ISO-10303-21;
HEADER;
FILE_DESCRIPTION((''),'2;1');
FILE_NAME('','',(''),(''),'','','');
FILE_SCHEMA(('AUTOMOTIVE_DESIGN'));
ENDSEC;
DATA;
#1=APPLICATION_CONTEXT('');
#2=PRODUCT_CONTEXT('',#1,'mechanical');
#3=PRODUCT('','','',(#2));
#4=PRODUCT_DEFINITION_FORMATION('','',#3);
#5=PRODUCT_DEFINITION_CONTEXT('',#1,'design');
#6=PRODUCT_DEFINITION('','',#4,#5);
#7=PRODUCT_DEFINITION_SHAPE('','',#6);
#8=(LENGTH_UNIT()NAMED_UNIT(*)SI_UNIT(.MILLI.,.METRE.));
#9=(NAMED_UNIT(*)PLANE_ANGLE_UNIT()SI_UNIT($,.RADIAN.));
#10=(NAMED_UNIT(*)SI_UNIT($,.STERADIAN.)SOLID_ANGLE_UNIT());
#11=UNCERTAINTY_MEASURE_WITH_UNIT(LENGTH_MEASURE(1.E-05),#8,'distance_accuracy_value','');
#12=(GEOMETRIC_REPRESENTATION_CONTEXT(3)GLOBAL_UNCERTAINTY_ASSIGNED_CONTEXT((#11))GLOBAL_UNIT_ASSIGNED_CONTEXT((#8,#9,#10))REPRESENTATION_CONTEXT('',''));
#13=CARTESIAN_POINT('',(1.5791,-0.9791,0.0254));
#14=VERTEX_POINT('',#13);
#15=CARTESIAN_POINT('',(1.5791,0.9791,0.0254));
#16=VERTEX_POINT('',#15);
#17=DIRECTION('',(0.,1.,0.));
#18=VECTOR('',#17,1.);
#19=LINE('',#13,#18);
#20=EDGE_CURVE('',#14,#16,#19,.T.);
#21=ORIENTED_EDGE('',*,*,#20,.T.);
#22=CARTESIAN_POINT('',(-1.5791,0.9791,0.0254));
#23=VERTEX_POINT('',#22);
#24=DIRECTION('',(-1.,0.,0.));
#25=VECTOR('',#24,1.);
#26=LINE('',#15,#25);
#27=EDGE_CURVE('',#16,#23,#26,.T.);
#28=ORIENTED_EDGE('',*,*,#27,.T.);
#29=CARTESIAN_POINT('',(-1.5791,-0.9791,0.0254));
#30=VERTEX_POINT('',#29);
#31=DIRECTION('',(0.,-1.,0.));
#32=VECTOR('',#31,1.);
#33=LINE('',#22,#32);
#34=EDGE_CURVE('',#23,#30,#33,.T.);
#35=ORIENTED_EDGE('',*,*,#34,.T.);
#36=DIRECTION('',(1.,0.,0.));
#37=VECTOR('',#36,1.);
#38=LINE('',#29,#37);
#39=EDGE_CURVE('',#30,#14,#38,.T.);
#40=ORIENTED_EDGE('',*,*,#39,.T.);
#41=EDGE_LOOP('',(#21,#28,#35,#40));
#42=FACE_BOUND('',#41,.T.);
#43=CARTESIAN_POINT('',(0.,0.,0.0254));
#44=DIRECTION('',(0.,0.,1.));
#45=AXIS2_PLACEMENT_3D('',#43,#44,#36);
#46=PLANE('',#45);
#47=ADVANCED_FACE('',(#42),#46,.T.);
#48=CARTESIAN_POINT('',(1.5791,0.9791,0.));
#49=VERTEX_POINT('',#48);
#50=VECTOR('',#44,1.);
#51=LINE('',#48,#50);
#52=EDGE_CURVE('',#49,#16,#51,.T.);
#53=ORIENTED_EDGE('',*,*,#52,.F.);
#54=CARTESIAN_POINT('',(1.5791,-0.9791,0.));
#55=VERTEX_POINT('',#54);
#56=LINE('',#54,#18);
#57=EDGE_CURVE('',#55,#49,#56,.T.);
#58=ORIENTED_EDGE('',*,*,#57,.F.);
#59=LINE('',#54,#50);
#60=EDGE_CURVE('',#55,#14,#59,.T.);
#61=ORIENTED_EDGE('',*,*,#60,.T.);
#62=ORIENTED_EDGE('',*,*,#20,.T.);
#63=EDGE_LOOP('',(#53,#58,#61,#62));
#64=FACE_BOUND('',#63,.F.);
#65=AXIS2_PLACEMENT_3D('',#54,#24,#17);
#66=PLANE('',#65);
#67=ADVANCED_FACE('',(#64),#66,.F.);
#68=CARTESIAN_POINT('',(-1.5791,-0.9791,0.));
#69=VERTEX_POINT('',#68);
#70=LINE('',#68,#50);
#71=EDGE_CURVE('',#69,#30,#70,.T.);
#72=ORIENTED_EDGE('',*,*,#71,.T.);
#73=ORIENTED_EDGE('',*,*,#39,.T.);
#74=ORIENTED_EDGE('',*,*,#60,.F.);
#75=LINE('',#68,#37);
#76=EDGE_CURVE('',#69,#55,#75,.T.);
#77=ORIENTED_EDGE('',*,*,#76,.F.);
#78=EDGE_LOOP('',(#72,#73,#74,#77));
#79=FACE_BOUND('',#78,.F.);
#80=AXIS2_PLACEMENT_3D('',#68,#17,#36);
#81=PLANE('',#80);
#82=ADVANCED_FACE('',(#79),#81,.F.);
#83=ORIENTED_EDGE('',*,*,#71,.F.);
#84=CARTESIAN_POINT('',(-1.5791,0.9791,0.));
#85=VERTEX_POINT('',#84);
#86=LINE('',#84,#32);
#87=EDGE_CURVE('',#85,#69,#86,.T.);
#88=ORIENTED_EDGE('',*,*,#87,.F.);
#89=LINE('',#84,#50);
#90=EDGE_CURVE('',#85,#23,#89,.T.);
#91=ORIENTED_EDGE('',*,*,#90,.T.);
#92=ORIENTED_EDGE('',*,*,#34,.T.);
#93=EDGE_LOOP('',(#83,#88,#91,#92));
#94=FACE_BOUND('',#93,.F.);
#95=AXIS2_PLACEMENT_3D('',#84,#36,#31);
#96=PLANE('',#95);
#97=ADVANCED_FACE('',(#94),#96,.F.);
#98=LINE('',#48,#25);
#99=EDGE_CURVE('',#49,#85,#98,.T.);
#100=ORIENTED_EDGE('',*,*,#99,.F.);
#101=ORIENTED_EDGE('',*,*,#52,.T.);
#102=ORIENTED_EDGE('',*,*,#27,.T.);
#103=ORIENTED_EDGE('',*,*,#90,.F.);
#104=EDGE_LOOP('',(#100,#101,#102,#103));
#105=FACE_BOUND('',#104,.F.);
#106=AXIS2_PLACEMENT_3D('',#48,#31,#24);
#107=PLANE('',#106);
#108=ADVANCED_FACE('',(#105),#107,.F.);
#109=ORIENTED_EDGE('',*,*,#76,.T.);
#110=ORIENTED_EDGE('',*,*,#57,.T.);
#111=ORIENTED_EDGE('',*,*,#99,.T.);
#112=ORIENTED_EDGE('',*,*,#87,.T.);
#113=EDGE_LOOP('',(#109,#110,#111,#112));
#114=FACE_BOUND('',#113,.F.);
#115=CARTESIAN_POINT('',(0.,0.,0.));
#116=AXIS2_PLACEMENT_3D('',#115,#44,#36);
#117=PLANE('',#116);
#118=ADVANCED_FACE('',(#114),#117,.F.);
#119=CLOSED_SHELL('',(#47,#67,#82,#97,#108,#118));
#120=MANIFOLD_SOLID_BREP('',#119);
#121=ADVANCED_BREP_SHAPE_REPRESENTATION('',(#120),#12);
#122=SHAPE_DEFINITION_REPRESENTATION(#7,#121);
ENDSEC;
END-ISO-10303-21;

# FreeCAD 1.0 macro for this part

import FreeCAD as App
import Part
import Sketcher

V = App.Vector
Q = App.Units.Quantity


def add_polygon(sketch, points):
    """Adds a closed chain of lines whose ends are joined by coincident constraints."""
    first, n = sketch.GeometryCount, len(points)
    for a, b in zip(points, points[1:] + points[:1]):
        sketch.addGeometry(Part.LineSegment(App.Vector(*a, 0), App.Vector(*b, 0)), False)
    for i in range(n):
        sketch.addConstraint(Sketcher.Constraint("Coincident", first + i, 2, first + (i + 1) % n, 1))

doc = App.newDocument("Part")
body = doc.addObject("PartDesign::Body", "Body")

# Sketch on XY plane
sketch1 = body.newObject("Sketcher::SketchObject", "Sketch")
sketch1.AttachmentSupport = (doc.getObject("XY_Plane"), [""])
sketch1.MapMode = "FlatFace"
add_polygon(sketch1, [(-1.6, 1), (-1.6, -1), (1.6, -1), (1.6, 1)])  # lines 0-3
sketch1.addConstraint([
    Sketcher.Constraint("Vertical", 0),
    Sketcher.Constraint("Horizontal", 1),
    Sketcher.Constraint("Vertical", 2),
    Sketcher.Constraint("Horizontal", 3),
    Sketcher.Constraint("Symmetric", 0, 2, 2, 2, -1, 1),
    Sketcher.Constraint("DistanceY", 0, 2, 0, 1, Q("0.0771 in")),
    Sketcher.Constraint("DistanceX", 1, 1, 1, 2, 3.1582),
])
pad1 = body.newObject("PartDesign::Pad", "Pad")
pad1.Profile = sketch1
pad1.Length = Q("0.001 in")

doc.recompute()
